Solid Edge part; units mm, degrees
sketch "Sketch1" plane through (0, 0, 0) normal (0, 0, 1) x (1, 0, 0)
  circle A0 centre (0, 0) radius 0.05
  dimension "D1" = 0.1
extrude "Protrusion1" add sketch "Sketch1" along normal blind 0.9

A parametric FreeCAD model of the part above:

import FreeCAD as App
import Part
import Sketcher

V = App.Vector

doc = App.newDocument("Part")
body = doc.addObject("PartDesign::Body", "Body")

# Sketch on XY plane
sketch1 = doc.addObject("Sketcher::SketchObject", "Sketch")
body.addObject(sketch1)
sketch1.AttachmentSupport = (doc.XY_Plane, [""])
sketch1.MapMode = "FlatFace"
sketch1.addGeometry(Part.Circle(V(0, 0, 0), V(0, 0, 1), 0.05), False)
sketch1.addConstraint(Sketcher.Constraint("Coincident", 0, 3, -1, 1))
sketch1.addConstraint(Sketcher.Constraint("Diameter", 0, 0.1))
pad1 = doc.addObject("PartDesign::Pad", "Pad")
body.addObject(pad1)
pad1.Profile = sketch1
pad1.Length = 0.9

doc.recompute()
